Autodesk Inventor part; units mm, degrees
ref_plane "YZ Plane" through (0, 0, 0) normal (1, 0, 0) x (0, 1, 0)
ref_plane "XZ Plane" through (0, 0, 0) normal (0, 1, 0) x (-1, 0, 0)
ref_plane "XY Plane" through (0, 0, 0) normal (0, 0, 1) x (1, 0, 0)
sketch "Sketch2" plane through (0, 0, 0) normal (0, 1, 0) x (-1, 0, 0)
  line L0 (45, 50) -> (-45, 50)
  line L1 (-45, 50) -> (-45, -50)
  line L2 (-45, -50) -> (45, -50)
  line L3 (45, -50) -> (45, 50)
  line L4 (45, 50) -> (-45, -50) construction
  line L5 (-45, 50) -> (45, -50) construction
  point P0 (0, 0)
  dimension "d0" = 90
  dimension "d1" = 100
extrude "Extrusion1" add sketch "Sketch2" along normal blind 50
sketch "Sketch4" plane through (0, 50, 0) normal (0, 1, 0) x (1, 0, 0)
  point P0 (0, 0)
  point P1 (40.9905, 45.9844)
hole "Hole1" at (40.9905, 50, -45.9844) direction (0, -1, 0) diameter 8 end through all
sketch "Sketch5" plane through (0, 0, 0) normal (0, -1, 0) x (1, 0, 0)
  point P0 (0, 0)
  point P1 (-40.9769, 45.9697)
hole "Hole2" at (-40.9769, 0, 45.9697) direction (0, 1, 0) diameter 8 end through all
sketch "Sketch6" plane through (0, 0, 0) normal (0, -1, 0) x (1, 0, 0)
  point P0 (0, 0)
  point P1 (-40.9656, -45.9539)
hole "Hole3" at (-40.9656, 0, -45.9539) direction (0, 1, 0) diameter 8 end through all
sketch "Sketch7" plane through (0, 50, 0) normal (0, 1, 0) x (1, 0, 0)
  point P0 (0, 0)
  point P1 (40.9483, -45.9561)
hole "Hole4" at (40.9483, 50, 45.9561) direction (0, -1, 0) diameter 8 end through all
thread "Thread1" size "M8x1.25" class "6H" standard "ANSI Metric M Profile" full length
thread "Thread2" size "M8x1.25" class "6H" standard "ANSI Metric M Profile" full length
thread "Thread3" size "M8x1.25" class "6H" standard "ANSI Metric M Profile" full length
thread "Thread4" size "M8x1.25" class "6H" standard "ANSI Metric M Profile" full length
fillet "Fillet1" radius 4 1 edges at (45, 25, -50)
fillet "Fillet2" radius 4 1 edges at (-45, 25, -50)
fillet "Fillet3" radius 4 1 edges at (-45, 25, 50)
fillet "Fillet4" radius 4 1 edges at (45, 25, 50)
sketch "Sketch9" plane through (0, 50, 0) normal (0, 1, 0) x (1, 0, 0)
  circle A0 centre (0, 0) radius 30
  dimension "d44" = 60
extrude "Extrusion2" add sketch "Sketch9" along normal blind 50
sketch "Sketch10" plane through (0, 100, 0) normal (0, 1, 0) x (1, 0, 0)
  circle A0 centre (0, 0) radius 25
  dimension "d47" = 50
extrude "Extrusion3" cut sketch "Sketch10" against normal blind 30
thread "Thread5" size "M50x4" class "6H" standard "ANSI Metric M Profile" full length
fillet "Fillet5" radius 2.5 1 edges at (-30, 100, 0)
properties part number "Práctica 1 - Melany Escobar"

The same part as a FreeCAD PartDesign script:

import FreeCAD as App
import Part
import Sketcher

V = App.Vector
Q = App.Units.Quantity


def edges_at(feature, points):
    """Names of the edges that pass closest to the given points."""
    edges = feature.Shape.Edges
    near = lambda p: min(range(len(edges)), key=lambda i: edges[i].distToShape(Part.Vertex(*p))[0])
    return sorted({f"Edge{near(p) + 1}" for p in points})


def add_polygon(sketch, points):
    """Adds a closed chain of lines whose ends are joined by coincident constraints."""
    first, n = sketch.GeometryCount, len(points)
    for a, b in zip(points, points[1:] + points[:1]):
        sketch.addGeometry(Part.LineSegment(App.Vector(*a, 0), App.Vector(*b, 0)), False)
    for i in range(n):
        sketch.addConstraint(Sketcher.Constraint("Coincident", first + i, 2, first + (i + 1) % n, 1))

doc = App.newDocument("Part")
params = doc.addObject("Spreadsheet::Sheet", "Params")
for row, (alias, value) in enumerate([
    ("sketch1_width", "90 mm"),
    ("sketch1_height", "100 mm"),
    ("pad1_length", "50 mm"),
    ("sketch2_diameter", "8 mm"),
    ("hole_diameter", "8 mm"),
    ("sketch3_diameter", "8 mm"),
    ("hole2_diameter", "8 mm"),
    ("sketch4_diameter", "8 mm"),
    ("hole3_diameter", "8 mm"),
    ("sketch5_diameter", "8 mm"),
    ("hole4_diameter", "8 mm"),
    ("fillet_radius", "4 mm"),
    ("fillet2_radius", "4 mm"),
    ("fillet3_radius", "4 mm"),
    ("fillet4_radius", "4 mm"),
    ("sketch6_diameter", "60 mm"),
    ("pad2_length", "50 mm"),
    ("sketch7_diameter", "50 mm"),
    ("pocket1_length", "30 mm"),
    ("fillet5_radius", "2.5 mm"),
], start=1):
    params.set(f"A{row}", alias)
    params.set(f"B{row}", "=" + value)
    params.setAlias(f"B{row}", alias)

body = doc.addObject("PartDesign::Body", "Body")

# Sketch on XZ plane
sketch1 = body.newObject("Sketcher::SketchObject", "Sketch")
sketch1.AttachmentSupport = (doc.getObject("XZ_Plane"), [""])
sketch1.MapMode = "FlatFace"
add_polygon(sketch1, [(-45, -50), (-45, 50), (45, 50), (45, -50)])  # lines 0-3
sketch1.addConstraint(Sketcher.Constraint("Vertical", 0))
sketch1.addConstraint(Sketcher.Constraint("Horizontal", 1))
sketch1.addConstraint(Sketcher.Constraint("Vertical", 2))
sketch1.addConstraint(Sketcher.Constraint("Horizontal", 3))
sketch1.addConstraint(Sketcher.Constraint("Symmetric", 0, 2, 2, 2, -1, 1))
sketch1.addConstraint(Sketcher.Constraint("DistanceX", 1, 1, 1, 2, Q("90 mm")))
sketch1.addConstraint(Sketcher.Constraint("DistanceY", 0, 1, 0, 2, Q("100 mm")))
sketch1.setExpression("Constraints[9]", "Params.sketch1_width")
sketch1.setExpression("Constraints[10]", "Params.sketch1_height")
pad1 = body.newObject("PartDesign::Pad", "Pad")
pad1.Profile = sketch1
pad1.setExpression("Length", "Params.pad1_length")
pad1.Reversed = True

# Sketch on XZ plane
sketch2 = body.newObject("Sketcher::SketchObject", "Sketch001")
sketch2.AttachmentSupport = (doc.getObject("XZ_Plane"), [""])
sketch2.MapMode = "FlatFace"
sketch2.AttachmentOffset = App.Placement(V(0, 0, -50), App.Rotation())
sketch2.addGeometry(Part.Circle(V(41, -46, 0), V(0, 0, 1), 4), False)
sketch2.addConstraint(Sketcher.Constraint("Diameter", 0, Q("8 mm")))
sketch2.addConstraint(Sketcher.Constraint("DistanceX", -1, 1, 0, 3, Q("40.9905 mm")))
sketch2.addConstraint(Sketcher.Constraint("DistanceY", 0, 3, -1, 1, Q("45.9844 mm")))
sketch2.setExpression("Constraints[0]", "Params.sketch2_diameter")
doc.recompute()
hole = body.newObject("PartDesign::Hole", "Hole")
hole.Profile = sketch2
hole.ThreadType = "None"
hole.setExpression("Diameter", "Params.hole_diameter")
hole.DepthType = "ThroughAll"
hole.Reversed = True

# Sketch on XZ plane
sketch3 = body.newObject("Sketcher::SketchObject", "Sketch002")
sketch3.AttachmentSupport = (doc.getObject("XZ_Plane"), [""])
sketch3.MapMode = "FlatFace"
sketch3.addGeometry(Part.Circle(V(-41, 46, 0), V(0, 0, 1), 4), False)
sketch3.addConstraint(Sketcher.Constraint("Diameter", 0, Q("8 mm")))
sketch3.addConstraint(Sketcher.Constraint("DistanceX", 0, 3, -1, 1, Q("40.977 mm")))
sketch3.addConstraint(Sketcher.Constraint("DistanceY", -1, 1, 0, 3, Q("45.9697 mm")))
sketch3.setExpression("Constraints[0]", "Params.sketch3_diameter")
doc.recompute()
hole2 = body.newObject("PartDesign::Hole", "Hole001")
hole2.Profile = sketch3
hole2.ThreadType = "None"
hole2.setExpression("Diameter", "Params.hole2_diameter")
hole2.DepthType = "ThroughAll"

# Sketch on XZ plane
sketch4 = body.newObject("Sketcher::SketchObject", "Sketch003")
sketch4.AttachmentSupport = (doc.getObject("XZ_Plane"), [""])
sketch4.MapMode = "FlatFace"
sketch4.addGeometry(Part.Circle(V(-41, -46, 0), V(0, 0, 1), 4), False)
sketch4.addConstraint(Sketcher.Constraint("Diameter", 0, Q("8 mm")))
sketch4.addConstraint(Sketcher.Constraint("DistanceY", 0, 3, -1, 1, Q("45.954 mm")))
sketch4.addConstraint(Sketcher.Constraint("DistanceX", 0, 3, -1, 1, Q("40.9656 mm")))
sketch4.setExpression("Constraints[0]", "Params.sketch4_diameter")
doc.recompute()
hole3 = body.newObject("PartDesign::Hole", "Hole002")
hole3.Profile = sketch4
hole3.ThreadType = "None"
hole3.setExpression("Diameter", "Params.hole3_diameter")
hole3.DepthType = "ThroughAll"

# Sketch on XZ plane
sketch5 = body.newObject("Sketcher::SketchObject", "Sketch004")
sketch5.AttachmentSupport = (doc.getObject("XZ_Plane"), [""])
sketch5.MapMode = "FlatFace"
sketch5.AttachmentOffset = App.Placement(V(0, 0, -50), App.Rotation())
sketch5.addGeometry(Part.Circle(V(40.9, 46, 0), V(0, 0, 1), 4), False)
sketch5.addConstraint(Sketcher.Constraint("Diameter", 0, Q("8 mm")))
sketch5.addConstraint(Sketcher.Constraint("DistanceY", -1, 1, 0, 3, Q("45.956 mm")))
sketch5.addConstraint(Sketcher.Constraint("DistanceX", -1, 1, 0, 3, Q("40.9483 mm")))
sketch5.setExpression("Constraints[0]", "Params.sketch5_diameter")
doc.recompute()
hole4 = body.newObject("PartDesign::Hole", "Hole003")
hole4.Profile = sketch5
hole4.ThreadType = "None"
hole4.setExpression("Diameter", "Params.hole4_diameter")
hole4.DepthType = "ThroughAll"
hole4.Reversed = True
doc.recompute()

fillet = body.newObject("PartDesign::Fillet", "Fillet")
fillet.Base = (hole4, edges_at(hole4, [(45, 25, -50)]))
fillet.setExpression("Radius", "Params.fillet_radius")
doc.recompute()

fillet2 = body.newObject("PartDesign::Fillet", "Fillet001")
fillet2.Base = (fillet, edges_at(fillet, [(-45, 25, -50)]))
fillet2.setExpression("Radius", "Params.fillet2_radius")
doc.recompute()

fillet3 = body.newObject("PartDesign::Fillet", "Fillet002")
fillet3.Base = (fillet2, edges_at(fillet2, [(-45, 25, 50)]))
fillet3.setExpression("Radius", "Params.fillet3_radius")
doc.recompute()

fillet4 = body.newObject("PartDesign::Fillet", "Fillet003")
fillet4.Base = (fillet3, edges_at(fillet3, [(45, 25, 50)]))
fillet4.setExpression("Radius", "Params.fillet4_radius")

# Sketch on XZ plane
sketch6 = body.newObject("Sketcher::SketchObject", "Sketch005")
sketch6.AttachmentSupport = (doc.getObject("XZ_Plane"), [""])
sketch6.MapMode = "FlatFace"
sketch6.AttachmentOffset = App.Placement(V(0, 0, -50), App.Rotation())
sketch6.addGeometry(Part.Circle(V(0, 0, 0), V(0, 0, 1), 30), False)
sketch6.addConstraint(Sketcher.Constraint("Coincident", 0, 3, -1, 1))
sketch6.addConstraint(Sketcher.Constraint("Diameter", 0, Q("60 mm")))
sketch6.setExpression("Constraints[1]", "Params.sketch6_diameter")
pad2 = body.newObject("PartDesign::Pad", "Pad001")
pad2.Profile = sketch6
pad2.setExpression("Length", "Params.pad2_length")
pad2.Reversed = True

# Sketch on XZ plane
sketch7 = body.newObject("Sketcher::SketchObject", "Sketch006")
sketch7.AttachmentSupport = (doc.getObject("XZ_Plane"), [""])
sketch7.MapMode = "FlatFace"
sketch7.AttachmentOffset = App.Placement(V(0, 0, -100), App.Rotation())
sketch7.addGeometry(Part.Circle(V(0, 0, 0), V(0, 0, 1), 25), False)
sketch7.addConstraint(Sketcher.Constraint("Coincident", 0, 3, -1, 1))
sketch7.addConstraint(Sketcher.Constraint("Diameter", 0, Q("50 mm")))
sketch7.setExpression("Constraints[1]", "Params.sketch7_diameter")
pocket1 = body.newObject("PartDesign::Pocket", "Pocket")
pocket1.Profile = sketch7
pocket1.setExpression("Length", "Params.pocket1_length")
pocket1.Reversed = True
doc.recompute()

fillet5 = body.newObject("PartDesign::Fillet", "Fillet004")
fillet5.Base = (pocket1, edges_at(pocket1, [(-30, 100, 0)]))
fillet5.setExpression("Radius", "Params.fillet5_radius")

doc.recompute()
